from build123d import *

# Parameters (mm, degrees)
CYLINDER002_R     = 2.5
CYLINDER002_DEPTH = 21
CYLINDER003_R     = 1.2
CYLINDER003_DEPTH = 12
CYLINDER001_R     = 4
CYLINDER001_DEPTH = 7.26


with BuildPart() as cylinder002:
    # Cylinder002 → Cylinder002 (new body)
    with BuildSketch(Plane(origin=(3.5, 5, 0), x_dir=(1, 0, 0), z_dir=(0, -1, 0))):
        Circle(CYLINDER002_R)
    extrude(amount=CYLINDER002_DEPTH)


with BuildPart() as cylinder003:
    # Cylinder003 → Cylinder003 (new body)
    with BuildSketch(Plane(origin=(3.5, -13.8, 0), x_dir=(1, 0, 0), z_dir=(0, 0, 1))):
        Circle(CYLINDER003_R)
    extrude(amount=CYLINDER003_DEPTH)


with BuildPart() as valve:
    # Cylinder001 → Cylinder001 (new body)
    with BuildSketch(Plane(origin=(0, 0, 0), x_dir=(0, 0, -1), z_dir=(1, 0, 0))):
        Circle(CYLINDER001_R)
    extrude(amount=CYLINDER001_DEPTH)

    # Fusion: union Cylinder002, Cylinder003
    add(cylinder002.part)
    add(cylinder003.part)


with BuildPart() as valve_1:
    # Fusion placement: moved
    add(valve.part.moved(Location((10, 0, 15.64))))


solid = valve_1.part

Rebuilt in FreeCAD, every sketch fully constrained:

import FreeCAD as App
import Part
import Sketcher

V = App.Vector
Q = App.Units.Quantity

doc = App.newDocument("Part")
body = doc.addObject("PartDesign::Body", "Body")

# Sketch on XZ plane
sketch1 = body.newObject("Sketcher::SketchObject", "Sketch")
sketch1.AttachmentSupport = (doc.getObject("XZ_Plane"), [""])
sketch1.MapMode = "FlatFace"
sketch1.AttachmentOffset = App.Placement(V(0, 0, -5), App.Rotation())
sketch1.addGeometry(Part.Circle(V(3.5, 0, 0), V(0, 0, 1), 2.5), False)
sketch1.addConstraint([
    Sketcher.Constraint("PointOnObject", 0, 3, -1),
    Sketcher.Constraint("Diameter", 0, Q("5 mm")),
    Sketcher.Constraint("DistanceX", -1, 1, 0, 3, Q("3.5 mm")),
])
pad1 = body.newObject("PartDesign::Pad", "Pad")
pad1.Profile = sketch1
pad1.Length = 21
body2 = doc.addObject("PartDesign::Body", "Body001")

# Sketch on XY plane
sketch2 = body2.newObject("Sketcher::SketchObject", "Sketch001")
sketch2.AttachmentSupport = (doc.getObject("XY_Plane001"), [""])
sketch2.MapMode = "FlatFace"
sketch2.addGeometry(Part.Circle(V(3.5, -13.8, 0), V(0, 0, 1), 1.2), False)
sketch2.addConstraint([
    Sketcher.Constraint("Diameter", 0, Q("2.4 mm")),
    Sketcher.Constraint("DistanceX", -1, 1, 0, 3, Q("3.5 mm")),
    Sketcher.Constraint("DistanceY", 0, 3, -1, 1, Q("13.8 mm")),
])
pad2 = body2.newObject("PartDesign::Pad", "Pad001")
pad2.Profile = sketch2
pad2.Length = 12
body3 = doc.addObject("PartDesign::Body", "Body002")

# Sketch on YZ plane
sketch3 = body3.newObject("Sketcher::SketchObject", "Sketch002")
sketch3.AttachmentSupport = (doc.getObject("YZ_Plane002"), [""])
sketch3.MapMode = "FlatFace"
sketch3.addGeometry(Part.Circle(V(0, 0, 0), V(0, 0, 1), 4), False)
sketch3.addConstraint([
    Sketcher.Constraint("Coincident", 0, 3, -1, 1),
    Sketcher.Constraint("Diameter", 0, Q("8 mm")),
])
pad3 = body3.newObject("PartDesign::Pad", "Pad002")
pad3.Profile = sketch3
pad3.Length = 7.26
doc.recompute()

boolean = body3.newObject("PartDesign::Boolean", "Boolean")
boolean.Type = "Fuse"
boolean.addObjects([body])
doc.recompute()

boolean2 = body3.newObject("PartDesign::Boolean", "Boolean001")
boolean2.Type = "Fuse"
boolean2.addObjects([body2])
body4 = doc.addObject("PartDesign::Body", "Body003")
doc.recompute()

body3.Placement = App.Placement(V(10, 0, 15.64), App.Rotation(V(0, 0, 1), 0))
boolean3 = body4.newObject("PartDesign::Boolean", "Boolean002")
boolean3.Type = "Fuse"
boolean3.addObjects([body3])

doc.recompute()
